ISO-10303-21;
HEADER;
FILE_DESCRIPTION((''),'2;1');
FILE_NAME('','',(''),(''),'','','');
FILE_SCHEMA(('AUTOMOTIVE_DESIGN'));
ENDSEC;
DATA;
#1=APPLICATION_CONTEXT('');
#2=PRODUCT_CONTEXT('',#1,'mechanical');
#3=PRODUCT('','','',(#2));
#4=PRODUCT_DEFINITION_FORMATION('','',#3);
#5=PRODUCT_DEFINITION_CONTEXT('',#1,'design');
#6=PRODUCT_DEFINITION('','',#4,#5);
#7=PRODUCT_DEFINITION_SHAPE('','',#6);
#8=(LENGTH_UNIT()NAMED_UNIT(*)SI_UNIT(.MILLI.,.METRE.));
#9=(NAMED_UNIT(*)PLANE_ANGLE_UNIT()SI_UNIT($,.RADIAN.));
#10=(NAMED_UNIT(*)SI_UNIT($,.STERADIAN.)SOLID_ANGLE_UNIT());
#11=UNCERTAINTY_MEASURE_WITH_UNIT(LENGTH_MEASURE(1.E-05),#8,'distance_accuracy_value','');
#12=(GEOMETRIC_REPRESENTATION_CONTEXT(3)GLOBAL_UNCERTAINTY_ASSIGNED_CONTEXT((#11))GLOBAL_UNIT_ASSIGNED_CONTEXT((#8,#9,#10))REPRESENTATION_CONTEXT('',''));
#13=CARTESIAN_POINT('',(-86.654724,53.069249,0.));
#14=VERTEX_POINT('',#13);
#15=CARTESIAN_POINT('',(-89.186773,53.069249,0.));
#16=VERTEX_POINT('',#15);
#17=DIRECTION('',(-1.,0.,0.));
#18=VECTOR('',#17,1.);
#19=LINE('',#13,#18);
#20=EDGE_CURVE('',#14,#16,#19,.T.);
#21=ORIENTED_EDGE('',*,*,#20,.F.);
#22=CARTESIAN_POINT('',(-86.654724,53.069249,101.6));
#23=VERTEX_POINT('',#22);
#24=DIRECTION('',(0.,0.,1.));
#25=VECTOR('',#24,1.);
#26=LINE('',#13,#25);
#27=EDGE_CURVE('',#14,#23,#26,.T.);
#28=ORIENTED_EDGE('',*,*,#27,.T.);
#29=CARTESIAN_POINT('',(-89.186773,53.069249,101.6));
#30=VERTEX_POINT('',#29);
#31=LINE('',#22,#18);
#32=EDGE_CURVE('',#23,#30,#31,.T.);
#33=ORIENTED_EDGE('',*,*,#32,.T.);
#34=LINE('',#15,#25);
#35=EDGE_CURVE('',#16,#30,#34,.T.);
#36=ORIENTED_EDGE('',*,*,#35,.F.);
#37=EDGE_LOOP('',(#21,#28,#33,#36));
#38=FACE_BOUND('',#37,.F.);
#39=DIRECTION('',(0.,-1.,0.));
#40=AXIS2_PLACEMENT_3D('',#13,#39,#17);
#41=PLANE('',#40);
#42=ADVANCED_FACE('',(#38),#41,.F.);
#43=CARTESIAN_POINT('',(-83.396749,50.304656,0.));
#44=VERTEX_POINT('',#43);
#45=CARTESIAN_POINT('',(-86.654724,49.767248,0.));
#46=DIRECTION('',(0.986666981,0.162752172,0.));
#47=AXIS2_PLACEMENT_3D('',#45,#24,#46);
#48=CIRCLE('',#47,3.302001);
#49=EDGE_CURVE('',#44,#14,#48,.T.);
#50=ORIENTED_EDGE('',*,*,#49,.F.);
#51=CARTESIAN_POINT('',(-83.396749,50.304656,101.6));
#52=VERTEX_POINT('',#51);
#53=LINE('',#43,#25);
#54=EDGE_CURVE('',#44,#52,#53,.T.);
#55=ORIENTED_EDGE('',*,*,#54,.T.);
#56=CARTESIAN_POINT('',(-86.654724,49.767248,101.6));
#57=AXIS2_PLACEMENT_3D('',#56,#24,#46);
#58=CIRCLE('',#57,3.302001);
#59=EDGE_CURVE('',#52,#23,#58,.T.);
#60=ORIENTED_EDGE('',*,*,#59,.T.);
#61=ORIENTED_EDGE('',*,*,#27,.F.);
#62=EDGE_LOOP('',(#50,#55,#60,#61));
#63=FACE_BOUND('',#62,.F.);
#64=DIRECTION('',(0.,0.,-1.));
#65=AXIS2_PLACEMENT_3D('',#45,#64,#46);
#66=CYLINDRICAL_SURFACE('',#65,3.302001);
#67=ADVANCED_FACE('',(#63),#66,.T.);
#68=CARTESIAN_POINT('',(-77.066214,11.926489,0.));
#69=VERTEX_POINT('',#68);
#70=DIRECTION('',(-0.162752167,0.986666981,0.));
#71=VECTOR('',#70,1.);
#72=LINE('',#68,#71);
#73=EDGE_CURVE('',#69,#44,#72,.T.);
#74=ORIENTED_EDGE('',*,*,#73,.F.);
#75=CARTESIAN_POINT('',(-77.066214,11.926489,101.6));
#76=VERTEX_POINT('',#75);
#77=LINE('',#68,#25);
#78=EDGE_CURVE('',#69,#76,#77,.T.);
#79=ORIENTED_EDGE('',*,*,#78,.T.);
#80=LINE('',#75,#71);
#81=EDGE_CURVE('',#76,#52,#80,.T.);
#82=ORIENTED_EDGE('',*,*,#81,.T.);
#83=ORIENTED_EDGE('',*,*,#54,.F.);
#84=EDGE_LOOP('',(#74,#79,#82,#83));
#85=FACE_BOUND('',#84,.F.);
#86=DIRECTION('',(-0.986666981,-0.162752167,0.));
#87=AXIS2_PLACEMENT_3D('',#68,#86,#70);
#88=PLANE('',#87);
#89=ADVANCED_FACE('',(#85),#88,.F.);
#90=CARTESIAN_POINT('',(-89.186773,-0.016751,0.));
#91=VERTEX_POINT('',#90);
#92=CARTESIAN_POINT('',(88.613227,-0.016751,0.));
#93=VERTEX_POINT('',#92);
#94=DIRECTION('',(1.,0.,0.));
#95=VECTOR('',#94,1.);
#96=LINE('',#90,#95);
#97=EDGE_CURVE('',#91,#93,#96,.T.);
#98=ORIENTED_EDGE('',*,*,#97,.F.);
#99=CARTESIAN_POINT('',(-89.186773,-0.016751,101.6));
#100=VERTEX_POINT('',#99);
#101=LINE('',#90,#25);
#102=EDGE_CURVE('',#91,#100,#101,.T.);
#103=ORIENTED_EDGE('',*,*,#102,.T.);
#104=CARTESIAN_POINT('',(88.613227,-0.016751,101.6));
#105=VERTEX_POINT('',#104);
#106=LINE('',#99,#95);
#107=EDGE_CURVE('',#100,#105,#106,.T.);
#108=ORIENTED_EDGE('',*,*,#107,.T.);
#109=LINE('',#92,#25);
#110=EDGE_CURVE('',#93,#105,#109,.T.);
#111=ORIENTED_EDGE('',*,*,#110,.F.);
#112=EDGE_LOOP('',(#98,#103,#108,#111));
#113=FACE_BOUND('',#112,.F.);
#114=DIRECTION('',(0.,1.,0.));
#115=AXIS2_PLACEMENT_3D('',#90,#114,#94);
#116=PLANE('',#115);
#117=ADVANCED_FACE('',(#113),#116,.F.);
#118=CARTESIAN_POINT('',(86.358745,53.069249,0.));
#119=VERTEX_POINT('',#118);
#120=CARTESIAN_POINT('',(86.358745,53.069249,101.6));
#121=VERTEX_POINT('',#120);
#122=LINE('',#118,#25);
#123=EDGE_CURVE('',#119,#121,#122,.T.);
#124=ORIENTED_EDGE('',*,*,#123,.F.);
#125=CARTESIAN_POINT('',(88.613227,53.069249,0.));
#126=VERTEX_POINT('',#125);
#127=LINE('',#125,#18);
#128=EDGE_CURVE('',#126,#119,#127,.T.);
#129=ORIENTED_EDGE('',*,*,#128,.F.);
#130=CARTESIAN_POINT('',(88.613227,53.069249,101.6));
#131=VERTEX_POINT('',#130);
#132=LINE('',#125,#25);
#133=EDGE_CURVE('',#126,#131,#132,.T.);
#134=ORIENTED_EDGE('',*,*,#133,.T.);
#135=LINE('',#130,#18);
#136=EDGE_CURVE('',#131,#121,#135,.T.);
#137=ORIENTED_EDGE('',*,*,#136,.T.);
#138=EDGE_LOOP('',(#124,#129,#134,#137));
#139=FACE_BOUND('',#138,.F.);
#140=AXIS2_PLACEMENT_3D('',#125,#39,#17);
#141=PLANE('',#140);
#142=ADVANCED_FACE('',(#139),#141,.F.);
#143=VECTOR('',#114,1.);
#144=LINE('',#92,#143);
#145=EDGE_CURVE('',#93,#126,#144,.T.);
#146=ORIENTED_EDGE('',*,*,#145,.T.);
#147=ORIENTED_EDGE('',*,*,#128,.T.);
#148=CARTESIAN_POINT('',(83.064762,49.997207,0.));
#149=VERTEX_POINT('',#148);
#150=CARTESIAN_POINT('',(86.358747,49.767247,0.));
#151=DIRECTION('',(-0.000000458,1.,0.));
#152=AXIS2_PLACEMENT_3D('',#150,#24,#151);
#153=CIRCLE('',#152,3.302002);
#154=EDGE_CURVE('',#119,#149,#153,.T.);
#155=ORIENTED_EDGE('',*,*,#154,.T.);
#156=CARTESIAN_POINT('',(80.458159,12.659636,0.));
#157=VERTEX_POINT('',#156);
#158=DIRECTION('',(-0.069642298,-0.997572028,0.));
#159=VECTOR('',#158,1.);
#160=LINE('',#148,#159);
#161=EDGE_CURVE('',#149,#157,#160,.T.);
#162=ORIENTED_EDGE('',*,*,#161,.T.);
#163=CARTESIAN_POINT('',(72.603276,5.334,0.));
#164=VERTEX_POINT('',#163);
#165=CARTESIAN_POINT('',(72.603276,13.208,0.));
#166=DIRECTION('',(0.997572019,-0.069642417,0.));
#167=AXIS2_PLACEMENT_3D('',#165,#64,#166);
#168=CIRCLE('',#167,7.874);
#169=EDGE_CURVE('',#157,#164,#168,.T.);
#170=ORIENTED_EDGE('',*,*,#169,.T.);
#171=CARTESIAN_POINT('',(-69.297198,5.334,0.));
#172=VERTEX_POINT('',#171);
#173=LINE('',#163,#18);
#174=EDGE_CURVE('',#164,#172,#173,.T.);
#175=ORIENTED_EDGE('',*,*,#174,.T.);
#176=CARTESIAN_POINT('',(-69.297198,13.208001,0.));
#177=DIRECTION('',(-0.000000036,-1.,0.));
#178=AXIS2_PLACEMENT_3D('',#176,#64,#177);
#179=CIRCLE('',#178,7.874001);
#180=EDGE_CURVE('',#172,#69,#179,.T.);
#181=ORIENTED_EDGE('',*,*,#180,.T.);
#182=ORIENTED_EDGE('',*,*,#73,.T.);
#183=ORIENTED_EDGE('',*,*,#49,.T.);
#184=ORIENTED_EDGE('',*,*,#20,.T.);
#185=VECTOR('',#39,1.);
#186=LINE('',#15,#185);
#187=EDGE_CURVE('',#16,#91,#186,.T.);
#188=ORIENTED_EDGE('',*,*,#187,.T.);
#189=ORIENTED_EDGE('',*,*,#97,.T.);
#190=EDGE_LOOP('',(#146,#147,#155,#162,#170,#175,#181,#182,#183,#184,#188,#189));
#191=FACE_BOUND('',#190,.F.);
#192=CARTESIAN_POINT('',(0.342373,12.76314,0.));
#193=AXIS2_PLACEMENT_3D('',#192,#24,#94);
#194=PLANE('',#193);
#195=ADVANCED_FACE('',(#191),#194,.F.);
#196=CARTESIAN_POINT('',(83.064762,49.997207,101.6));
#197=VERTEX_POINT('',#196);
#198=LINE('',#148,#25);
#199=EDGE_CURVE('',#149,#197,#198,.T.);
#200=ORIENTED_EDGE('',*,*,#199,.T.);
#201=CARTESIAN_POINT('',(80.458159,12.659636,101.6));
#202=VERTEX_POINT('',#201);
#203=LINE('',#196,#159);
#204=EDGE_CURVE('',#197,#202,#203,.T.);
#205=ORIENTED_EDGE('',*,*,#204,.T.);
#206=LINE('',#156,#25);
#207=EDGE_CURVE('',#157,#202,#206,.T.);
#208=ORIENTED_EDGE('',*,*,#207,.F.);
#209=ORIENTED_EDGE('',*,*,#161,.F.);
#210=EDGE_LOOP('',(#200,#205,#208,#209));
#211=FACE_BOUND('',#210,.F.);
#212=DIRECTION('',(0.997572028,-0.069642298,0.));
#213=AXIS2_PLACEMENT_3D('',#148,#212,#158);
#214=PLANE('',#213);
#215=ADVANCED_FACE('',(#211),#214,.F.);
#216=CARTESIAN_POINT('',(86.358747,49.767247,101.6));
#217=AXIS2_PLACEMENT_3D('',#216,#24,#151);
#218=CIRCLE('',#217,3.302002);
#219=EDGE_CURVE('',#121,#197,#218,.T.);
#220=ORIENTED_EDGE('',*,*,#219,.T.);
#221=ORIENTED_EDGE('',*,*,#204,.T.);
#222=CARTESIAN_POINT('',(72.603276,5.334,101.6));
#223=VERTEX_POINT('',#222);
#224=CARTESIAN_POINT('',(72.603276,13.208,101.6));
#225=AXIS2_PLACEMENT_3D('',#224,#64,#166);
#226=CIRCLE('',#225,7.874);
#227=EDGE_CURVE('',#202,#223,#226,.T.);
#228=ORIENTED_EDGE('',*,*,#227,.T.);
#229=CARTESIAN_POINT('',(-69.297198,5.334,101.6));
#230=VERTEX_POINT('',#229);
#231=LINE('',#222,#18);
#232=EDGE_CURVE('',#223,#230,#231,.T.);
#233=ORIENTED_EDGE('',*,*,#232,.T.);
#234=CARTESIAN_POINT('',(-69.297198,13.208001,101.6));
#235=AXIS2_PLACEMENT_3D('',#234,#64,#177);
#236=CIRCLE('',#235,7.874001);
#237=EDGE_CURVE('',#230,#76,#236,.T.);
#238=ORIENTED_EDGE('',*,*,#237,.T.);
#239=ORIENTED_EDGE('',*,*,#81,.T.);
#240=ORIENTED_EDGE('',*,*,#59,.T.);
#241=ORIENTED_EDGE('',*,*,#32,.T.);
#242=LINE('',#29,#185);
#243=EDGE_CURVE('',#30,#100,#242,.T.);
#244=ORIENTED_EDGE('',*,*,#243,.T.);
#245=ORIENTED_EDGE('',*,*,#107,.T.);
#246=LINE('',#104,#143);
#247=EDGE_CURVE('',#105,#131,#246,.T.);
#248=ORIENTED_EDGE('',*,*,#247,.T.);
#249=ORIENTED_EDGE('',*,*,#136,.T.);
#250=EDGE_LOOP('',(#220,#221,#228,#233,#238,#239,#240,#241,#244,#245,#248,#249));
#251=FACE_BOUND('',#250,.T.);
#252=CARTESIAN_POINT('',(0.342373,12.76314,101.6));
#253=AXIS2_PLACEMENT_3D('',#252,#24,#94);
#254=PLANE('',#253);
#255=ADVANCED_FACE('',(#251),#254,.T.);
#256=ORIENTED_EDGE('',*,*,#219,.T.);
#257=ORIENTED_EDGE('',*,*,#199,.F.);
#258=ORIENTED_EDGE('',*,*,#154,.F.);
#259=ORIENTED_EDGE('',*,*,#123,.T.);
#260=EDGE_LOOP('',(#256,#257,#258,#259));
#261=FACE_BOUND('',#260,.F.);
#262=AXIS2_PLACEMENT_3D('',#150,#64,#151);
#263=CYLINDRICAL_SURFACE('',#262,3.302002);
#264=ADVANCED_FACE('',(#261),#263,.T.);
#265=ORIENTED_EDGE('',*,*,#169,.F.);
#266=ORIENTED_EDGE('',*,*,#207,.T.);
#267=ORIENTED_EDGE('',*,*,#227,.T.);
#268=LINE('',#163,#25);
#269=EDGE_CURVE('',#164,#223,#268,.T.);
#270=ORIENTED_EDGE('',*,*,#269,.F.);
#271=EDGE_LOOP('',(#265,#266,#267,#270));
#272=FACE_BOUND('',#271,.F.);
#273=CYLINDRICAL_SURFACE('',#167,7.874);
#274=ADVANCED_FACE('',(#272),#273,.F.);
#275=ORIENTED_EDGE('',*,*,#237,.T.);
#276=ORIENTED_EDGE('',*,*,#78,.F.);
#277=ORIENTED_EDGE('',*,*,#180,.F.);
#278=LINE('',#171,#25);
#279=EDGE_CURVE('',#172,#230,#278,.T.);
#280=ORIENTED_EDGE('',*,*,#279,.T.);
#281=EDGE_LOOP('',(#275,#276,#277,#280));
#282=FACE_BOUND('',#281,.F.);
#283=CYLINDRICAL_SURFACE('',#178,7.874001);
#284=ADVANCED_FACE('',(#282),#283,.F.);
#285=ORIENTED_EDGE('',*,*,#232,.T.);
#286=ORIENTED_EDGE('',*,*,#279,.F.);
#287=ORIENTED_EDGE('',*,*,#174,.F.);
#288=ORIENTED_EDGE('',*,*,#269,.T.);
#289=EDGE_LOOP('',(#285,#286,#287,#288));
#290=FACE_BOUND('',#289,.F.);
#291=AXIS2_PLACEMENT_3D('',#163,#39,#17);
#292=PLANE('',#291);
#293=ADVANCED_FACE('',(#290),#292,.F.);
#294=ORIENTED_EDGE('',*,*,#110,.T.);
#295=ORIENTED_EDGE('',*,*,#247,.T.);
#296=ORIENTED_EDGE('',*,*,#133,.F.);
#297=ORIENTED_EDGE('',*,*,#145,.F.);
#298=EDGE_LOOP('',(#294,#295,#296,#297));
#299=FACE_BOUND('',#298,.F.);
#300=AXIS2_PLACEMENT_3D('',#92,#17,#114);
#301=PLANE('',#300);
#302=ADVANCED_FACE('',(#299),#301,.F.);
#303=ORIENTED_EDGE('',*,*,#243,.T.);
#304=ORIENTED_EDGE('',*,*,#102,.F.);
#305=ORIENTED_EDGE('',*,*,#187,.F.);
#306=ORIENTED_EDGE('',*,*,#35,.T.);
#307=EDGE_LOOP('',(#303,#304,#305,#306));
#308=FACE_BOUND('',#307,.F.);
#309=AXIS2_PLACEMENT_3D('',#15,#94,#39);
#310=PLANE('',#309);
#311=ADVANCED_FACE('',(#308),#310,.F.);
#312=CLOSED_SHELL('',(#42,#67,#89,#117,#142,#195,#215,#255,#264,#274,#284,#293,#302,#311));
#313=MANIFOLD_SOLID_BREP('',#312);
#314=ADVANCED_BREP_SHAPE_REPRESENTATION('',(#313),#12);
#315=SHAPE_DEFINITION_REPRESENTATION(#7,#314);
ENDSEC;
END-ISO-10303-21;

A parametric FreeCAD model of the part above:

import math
import FreeCAD as App
import Part
import Sketcher
from FreeCAD import Vector
Q = App.Units.Quantity

doc = App.newDocument("Part")
body = doc.addObject("PartDesign::Body", "Body")

# Sketch on XY plane
sketch1 = body.newObject("Sketcher::SketchObject", "Sketch")
sketch1.AttachmentSupport = (doc.getObject("XY_Plane"), [""])
sketch1.MapMode = "FlatFace"
sketch1.addGeometry(Part.LineSegment(Vector(-89.2, 0, 0), Vector(88.6, 0, 0)), False)
sketch1.addGeometry(Part.LineSegment(Vector(88.6, 0, 0), Vector(88.6, 53.1, 0)), False)
sketch1.addGeometry(Part.LineSegment(Vector(88.6, 53.1, 0), Vector(86.4, 53.1, 0)), False)
sketch1.addGeometry(Part.ArcOfCircle(Part.Circle(Vector(86.4, 49.8, 0), Vector(0, 0, 1), 3.3), math.radians(90), math.radians(176)), False)
sketch1.addGeometry(Part.LineSegment(Vector(83.1, 50, 0), Vector(80.5, 12.7, 0)), False)
sketch1.addGeometry(Part.ArcOfCircle(Part.Circle(Vector(72.6, 13.2, 0), Vector(0, 0, 1), 7.9), math.radians(-90), math.radians(-4)), False)
sketch1.addGeometry(Part.LineSegment(Vector(72.6, 5.3, 0), Vector(-69.3, 5.3, 0)), False)
sketch1.addGeometry(Part.ArcOfCircle(Part.Circle(Vector(-69.3, 13.2, 0), Vector(0, 0, 1), 7.9), math.radians(-171), math.radians(-90)), False)
sketch1.addGeometry(Part.LineSegment(Vector(-77.1, 11.9, 0), Vector(-83.4, 50.3, 0)), False)
sketch1.addGeometry(Part.ArcOfCircle(Part.Circle(Vector(-86.7, 49.8, 0), Vector(0, 0, 1), 3.3), math.radians(9), math.radians(90)), False)
sketch1.addGeometry(Part.LineSegment(Vector(-86.7, 53.1, 0), Vector(-89.2, 53.1, 0)), False)
sketch1.addGeometry(Part.LineSegment(Vector(-89.2, 53.1, 0), Vector(-89.2, 0, 0)), False)
sketch1.addConstraint(Sketcher.Constraint("Coincident", 0, 2, 1, 1))
sketch1.addConstraint(Sketcher.Constraint("Coincident", 1, 2, 2, 1))
sketch1.addConstraint(Sketcher.Constraint("Tangent", 2, 2, 3, 1))
sketch1.addConstraint(Sketcher.Constraint("Tangent", 3, 2, 4, 1))
sketch1.addConstraint(Sketcher.Constraint("Tangent", 4, 2, 5, 2))
sketch1.addConstraint(Sketcher.Constraint("Tangent", 5, 1, 6, 1))
sketch1.addConstraint(Sketcher.Constraint("Tangent", 6, 2, 7, 2))
sketch1.addConstraint(Sketcher.Constraint("Tangent", 7, 1, 8, 1))
sketch1.addConstraint(Sketcher.Constraint("Tangent", 8, 2, 9, 1))
sketch1.addConstraint(Sketcher.Constraint("Tangent", 9, 2, 10, 1))
sketch1.addConstraint(Sketcher.Constraint("Coincident", 10, 2, 11, 1))
sketch1.addConstraint(Sketcher.Constraint("Coincident", 11, 2, 0, 1))
sketch1.addConstraint(Sketcher.Constraint("Horizontal", 0))
sketch1.addConstraint(Sketcher.Constraint("Vertical", 1))
sketch1.addConstraint(Sketcher.Constraint("Horizontal", 2))
sketch1.addConstraint(Sketcher.Constraint("Horizontal", 6))
sketch1.addConstraint(Sketcher.Constraint("Horizontal", 10))
sketch1.addConstraint(Sketcher.Constraint("Vertical", 11))
sketch1.addConstraint(Sketcher.Constraint("Equal", 5, 7))
sketch1.addConstraint(Sketcher.Constraint("Equal", 3, 9))
sketch1.addConstraint(Sketcher.Constraint("Horizontal", 3, 3, 9, 3))
sketch1.addConstraint(Sketcher.Constraint("DistanceX", 0, 1, 0, 2, Q("7 in")))
sketch1.addConstraint(Sketcher.Constraint("Radius", 3, Q("0.1300001 in")))
sketch1.addConstraint(Sketcher.Constraint("Radius", 5, Q("0.31 in")))
sketch1.addConstraint(Sketcher.Constraint("DistanceY", 1, 1, 1, 2, Q("2.09 in")))
sketch1.addConstraint(Sketcher.Constraint("DistanceY", -1, 1, 5, 3, Q("0.52 in")))
sketch1.addConstraint(Sketcher.Constraint("DistanceX", 9, 3, 5, 3, Q("6.27 in")))
sketch1.addConstraint(Sketcher.Constraint("DistanceX", 2, 2, 2, 1, 2.254482))
sketch1.addConstraint(Sketcher.Constraint("DistanceX", 10, 2, 10, 1, 2.532049))
sketch1.addConstraint(Sketcher.Constraint("Distance", 8, 38.896778))
sketch1.addConstraint(Sketcher.Constraint("DistanceX", 6, 2, 6, 1, 141.900474))
sketch1.addConstraint(Sketcher.Constraint("DistanceX", -1, 1, 3, 2, 83.064762))
pad1 = body.newObject("PartDesign::Pad", "Pad")
pad1.Profile = sketch1
pad1.Length = Q("4 in")

doc.recompute()
